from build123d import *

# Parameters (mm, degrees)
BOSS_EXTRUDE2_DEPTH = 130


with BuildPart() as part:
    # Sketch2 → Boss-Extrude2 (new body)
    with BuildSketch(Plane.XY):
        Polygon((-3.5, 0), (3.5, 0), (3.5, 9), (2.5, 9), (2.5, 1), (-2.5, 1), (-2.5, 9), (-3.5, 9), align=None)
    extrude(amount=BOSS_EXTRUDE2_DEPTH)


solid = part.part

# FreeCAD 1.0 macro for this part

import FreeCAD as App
import Part
import Sketcher

V = App.Vector
Q = App.Units.Quantity


def add_polygon(sketch, points):
    """Adds a closed chain of lines whose ends are joined by coincident constraints."""
    first, n = sketch.GeometryCount, len(points)
    for a, b in zip(points, points[1:] + points[:1]):
        sketch.addGeometry(Part.LineSegment(App.Vector(*a, 0), App.Vector(*b, 0)), False)
    for i in range(n):
        sketch.addConstraint(Sketcher.Constraint("Coincident", first + i, 2, first + (i + 1) % n, 1))

doc = App.newDocument("Part")
body = doc.addObject("PartDesign::Body", "Body")

# Sketch on XY plane
sketch1 = body.newObject("Sketcher::SketchObject", "Sketch")
sketch1.AttachmentSupport = (doc.getObject("XY_Plane"), [""])
sketch1.MapMode = "FlatFace"
add_polygon(sketch1, [(-3.5, 0), (3.5, 0), (3.5, 9), (2.5, 9), (2.5, 1), (-2.5, 1), (-2.5, 9), (-3.5, 9)])  # lines 0-7
sketch1.addConstraint([
    Sketcher.Constraint("Horizontal", 0),
    Sketcher.Constraint("Vertical", 1),
    Sketcher.Constraint("Horizontal", 2),
    Sketcher.Constraint("Vertical", 3),
    Sketcher.Constraint("Horizontal", 4),
    Sketcher.Constraint("Vertical", 5),
    Sketcher.Constraint("Horizontal", 6),
    Sketcher.Constraint("Vertical", 7),
    Sketcher.Constraint("Symmetric", 0, 2, 7, 2, -1, 1),
    Sketcher.Constraint("Symmetric", 2, 2, 5, 2, -2),
    Sketcher.Constraint("DistanceX", 0, 1, 0, 2, Q("7 mm")),
    Sketcher.Constraint("DistanceX", 2, 2, 2, 1, Q("1 mm")),
    Sketcher.Constraint("DistanceY", 1, 1, 1, 2, Q("9 mm")),
    Sketcher.Constraint("DistanceY", 3, 2, 3, 1, Q("8 mm")),
])
pad1 = body.newObject("PartDesign::Pad", "Pad")
pad1.Profile = sketch1
pad1.Length = 130

doc.recompute()
